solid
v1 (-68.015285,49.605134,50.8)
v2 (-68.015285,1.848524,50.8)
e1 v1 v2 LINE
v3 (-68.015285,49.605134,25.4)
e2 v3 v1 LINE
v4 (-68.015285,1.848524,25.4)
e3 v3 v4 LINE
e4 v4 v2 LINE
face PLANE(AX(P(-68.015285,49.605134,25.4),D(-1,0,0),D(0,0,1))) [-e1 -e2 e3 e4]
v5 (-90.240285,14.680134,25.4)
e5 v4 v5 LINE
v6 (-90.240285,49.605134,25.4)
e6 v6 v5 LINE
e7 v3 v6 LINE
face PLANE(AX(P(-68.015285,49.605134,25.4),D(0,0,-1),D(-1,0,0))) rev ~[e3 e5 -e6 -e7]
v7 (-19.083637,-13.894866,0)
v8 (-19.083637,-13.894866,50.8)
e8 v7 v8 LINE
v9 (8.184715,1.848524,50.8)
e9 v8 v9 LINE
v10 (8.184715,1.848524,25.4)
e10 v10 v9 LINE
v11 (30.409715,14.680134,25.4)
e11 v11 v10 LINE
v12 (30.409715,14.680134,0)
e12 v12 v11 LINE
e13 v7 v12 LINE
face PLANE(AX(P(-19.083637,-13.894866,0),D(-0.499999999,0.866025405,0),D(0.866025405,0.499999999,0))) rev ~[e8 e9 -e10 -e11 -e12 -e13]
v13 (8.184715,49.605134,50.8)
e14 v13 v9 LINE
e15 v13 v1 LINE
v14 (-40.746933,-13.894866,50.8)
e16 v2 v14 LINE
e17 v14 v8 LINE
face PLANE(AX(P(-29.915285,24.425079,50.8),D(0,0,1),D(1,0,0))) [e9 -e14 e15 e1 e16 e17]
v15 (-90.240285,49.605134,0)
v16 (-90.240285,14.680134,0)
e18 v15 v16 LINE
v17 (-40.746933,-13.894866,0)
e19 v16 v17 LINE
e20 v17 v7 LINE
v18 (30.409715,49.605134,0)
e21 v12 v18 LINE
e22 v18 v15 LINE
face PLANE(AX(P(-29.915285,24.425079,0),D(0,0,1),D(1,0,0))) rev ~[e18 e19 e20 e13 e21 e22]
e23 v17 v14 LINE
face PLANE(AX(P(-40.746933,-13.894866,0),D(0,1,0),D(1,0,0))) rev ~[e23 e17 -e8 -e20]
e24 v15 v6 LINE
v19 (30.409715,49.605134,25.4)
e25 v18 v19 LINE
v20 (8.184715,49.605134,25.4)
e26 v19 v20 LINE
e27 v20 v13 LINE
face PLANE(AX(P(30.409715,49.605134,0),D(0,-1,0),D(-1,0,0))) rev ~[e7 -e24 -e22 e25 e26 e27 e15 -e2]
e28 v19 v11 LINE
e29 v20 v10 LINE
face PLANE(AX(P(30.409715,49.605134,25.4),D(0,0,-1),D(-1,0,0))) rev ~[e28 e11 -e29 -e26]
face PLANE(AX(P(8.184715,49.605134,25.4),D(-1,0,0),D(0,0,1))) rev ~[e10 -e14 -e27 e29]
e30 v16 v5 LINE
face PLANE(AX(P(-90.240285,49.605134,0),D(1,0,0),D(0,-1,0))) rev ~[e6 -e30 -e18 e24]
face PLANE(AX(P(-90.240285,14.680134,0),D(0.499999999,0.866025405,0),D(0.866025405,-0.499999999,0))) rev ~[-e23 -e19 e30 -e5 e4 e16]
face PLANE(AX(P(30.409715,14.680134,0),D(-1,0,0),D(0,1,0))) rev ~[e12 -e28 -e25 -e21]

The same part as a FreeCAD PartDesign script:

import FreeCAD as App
import Part
import Sketcher

V = App.Vector
Q = App.Units.Quantity


def add_polygon(sketch, points):
    """Adds a closed chain of lines whose ends are joined by coincident constraints."""
    first, n = sketch.GeometryCount, len(points)
    for a, b in zip(points, points[1:] + points[:1]):
        sketch.addGeometry(Part.LineSegment(App.Vector(*a, 0), App.Vector(*b, 0)), False)
    for i in range(n):
        sketch.addConstraint(Sketcher.Constraint("Coincident", first + i, 2, first + (i + 1) % n, 1))

doc = App.newDocument("Part")
params = doc.addObject("Spreadsheet::Sheet", "Params")
for row, (alias, value) in enumerate([
    ("sketch1_width", "4.75 in"),
    ("sketch1_length", "2.25 in"),
    ("pad1_length", "2 in"),
    ("sketch2_height", "1 in"),
    ("sketch2_width", "0.875 in"),
    ("pocket1_length", "2 in"),
], start=1):
    params.set(f"A{row}", alias)
    params.set(f"B{row}", "=" + value)
    params.setAlias(f"B{row}", alias)

body = doc.addObject("PartDesign::Body", "Body")

# Sketch on XY plane
sketch1 = body.newObject("Sketcher::SketchObject", "Sketch")
sketch1.AttachmentSupport = (doc.getObject("XY_Plane"), [""])
sketch1.MapMode = "FlatFace"
add_polygon(sketch1, [(30, 50), (-90, 50), (-90, 15), (-41, -14), (-19, -14), (30, 15)])  # lines 0-5
sketch1.addConstraint([
    Sketcher.Constraint("Horizontal", 0),
    Sketcher.Constraint("Vertical", 1),
    Sketcher.Constraint("Horizontal", 3),
    Sketcher.Constraint("Vertical", 5),
    Sketcher.Constraint("Horizontal", 1, 2, 4, 2),
    Sketcher.Constraint("Equal", 2, 4),
    Sketcher.Constraint("Angle", 2, Q("-30 deg")),
    Sketcher.Constraint("DistanceX", 0, 2, 0, 1, Q("4.75 in")),
    Sketcher.Constraint("DistanceY", 2, 2, 0, 2, Q("2.5 in")),
    Sketcher.Constraint("Distance", 2, Q("2.25 in")),
    Sketcher.Constraint("DistanceX", 0, 2, -1, 1, 90.240285),
    Sketcher.Constraint("DistanceY", -1, 1, 0, 2, 49.605134),
])
sketch1.setExpression("Constraints[13]", "Params.sketch1_width")
sketch1.setExpression("Constraints[15]", "Params.sketch1_length")
pad1 = body.newObject("PartDesign::Pad", "Pad")
pad1.Profile = sketch1
pad1.setExpression("Length", "Params.pad1_length")

# Sketch on XZ plane
sketch2 = body.newObject("Sketcher::SketchObject", "Sketch001")
sketch2.AttachmentSupport = (doc.getObject("XZ_Plane"), [""])
sketch2.MapMode = "FlatFace"
sketch2.AttachmentOffset = App.Placement(V(0, 0, -49.605134), App.Rotation())
add_polygon(sketch2, [(30, 51), (30, 25), (8, 25), (8, 51)])  # lines 0-3
add_polygon(sketch2, [(-68, 51), (-68, 25), (-90, 25), (-90, 51)])  # lines 4-7
sketch2.addConstraint([
    Sketcher.Constraint("Vertical", 0),
    Sketcher.Constraint("Horizontal", 1),
    Sketcher.Constraint("Vertical", 2),
    Sketcher.Constraint("Horizontal", 3),
    Sketcher.Constraint("Vertical", 4),
    Sketcher.Constraint("Horizontal", 5),
    Sketcher.Constraint("Vertical", 6),
    Sketcher.Constraint("Horizontal", 7),
    Sketcher.Constraint("Horizontal", 1, 2, 4, 2),
    Sketcher.Constraint("Horizontal", 3, 2, 6, 2),
    Sketcher.Constraint("Equal", 3, 5),
    Sketcher.Constraint("DistanceY", 0, 2, 0, 1, Q("1 in")),
    Sketcher.Constraint("DistanceY", -1, 1, 0, 2, Q("1 in")),
    Sketcher.Constraint("DistanceX", 4, 2, 1, 2, Q("3 in")),
    Sketcher.Constraint("DistanceX", 1, 2, 1, 1, Q("0.875 in")),
    Sketcher.Constraint("DistanceX", -1, 1, 0, 2, 30.409715),
])
sketch2.setExpression("Constraints[19]", "Params.sketch2_height")
sketch2.setExpression("Constraints[22]", "Params.sketch2_width")
pocket1 = body.newObject("PartDesign::Pocket", "Pocket")
pocket1.Profile = sketch2
pocket1.setExpression("Length", "Params.pocket1_length")
pocket1.Reversed = True

doc.recompute()
